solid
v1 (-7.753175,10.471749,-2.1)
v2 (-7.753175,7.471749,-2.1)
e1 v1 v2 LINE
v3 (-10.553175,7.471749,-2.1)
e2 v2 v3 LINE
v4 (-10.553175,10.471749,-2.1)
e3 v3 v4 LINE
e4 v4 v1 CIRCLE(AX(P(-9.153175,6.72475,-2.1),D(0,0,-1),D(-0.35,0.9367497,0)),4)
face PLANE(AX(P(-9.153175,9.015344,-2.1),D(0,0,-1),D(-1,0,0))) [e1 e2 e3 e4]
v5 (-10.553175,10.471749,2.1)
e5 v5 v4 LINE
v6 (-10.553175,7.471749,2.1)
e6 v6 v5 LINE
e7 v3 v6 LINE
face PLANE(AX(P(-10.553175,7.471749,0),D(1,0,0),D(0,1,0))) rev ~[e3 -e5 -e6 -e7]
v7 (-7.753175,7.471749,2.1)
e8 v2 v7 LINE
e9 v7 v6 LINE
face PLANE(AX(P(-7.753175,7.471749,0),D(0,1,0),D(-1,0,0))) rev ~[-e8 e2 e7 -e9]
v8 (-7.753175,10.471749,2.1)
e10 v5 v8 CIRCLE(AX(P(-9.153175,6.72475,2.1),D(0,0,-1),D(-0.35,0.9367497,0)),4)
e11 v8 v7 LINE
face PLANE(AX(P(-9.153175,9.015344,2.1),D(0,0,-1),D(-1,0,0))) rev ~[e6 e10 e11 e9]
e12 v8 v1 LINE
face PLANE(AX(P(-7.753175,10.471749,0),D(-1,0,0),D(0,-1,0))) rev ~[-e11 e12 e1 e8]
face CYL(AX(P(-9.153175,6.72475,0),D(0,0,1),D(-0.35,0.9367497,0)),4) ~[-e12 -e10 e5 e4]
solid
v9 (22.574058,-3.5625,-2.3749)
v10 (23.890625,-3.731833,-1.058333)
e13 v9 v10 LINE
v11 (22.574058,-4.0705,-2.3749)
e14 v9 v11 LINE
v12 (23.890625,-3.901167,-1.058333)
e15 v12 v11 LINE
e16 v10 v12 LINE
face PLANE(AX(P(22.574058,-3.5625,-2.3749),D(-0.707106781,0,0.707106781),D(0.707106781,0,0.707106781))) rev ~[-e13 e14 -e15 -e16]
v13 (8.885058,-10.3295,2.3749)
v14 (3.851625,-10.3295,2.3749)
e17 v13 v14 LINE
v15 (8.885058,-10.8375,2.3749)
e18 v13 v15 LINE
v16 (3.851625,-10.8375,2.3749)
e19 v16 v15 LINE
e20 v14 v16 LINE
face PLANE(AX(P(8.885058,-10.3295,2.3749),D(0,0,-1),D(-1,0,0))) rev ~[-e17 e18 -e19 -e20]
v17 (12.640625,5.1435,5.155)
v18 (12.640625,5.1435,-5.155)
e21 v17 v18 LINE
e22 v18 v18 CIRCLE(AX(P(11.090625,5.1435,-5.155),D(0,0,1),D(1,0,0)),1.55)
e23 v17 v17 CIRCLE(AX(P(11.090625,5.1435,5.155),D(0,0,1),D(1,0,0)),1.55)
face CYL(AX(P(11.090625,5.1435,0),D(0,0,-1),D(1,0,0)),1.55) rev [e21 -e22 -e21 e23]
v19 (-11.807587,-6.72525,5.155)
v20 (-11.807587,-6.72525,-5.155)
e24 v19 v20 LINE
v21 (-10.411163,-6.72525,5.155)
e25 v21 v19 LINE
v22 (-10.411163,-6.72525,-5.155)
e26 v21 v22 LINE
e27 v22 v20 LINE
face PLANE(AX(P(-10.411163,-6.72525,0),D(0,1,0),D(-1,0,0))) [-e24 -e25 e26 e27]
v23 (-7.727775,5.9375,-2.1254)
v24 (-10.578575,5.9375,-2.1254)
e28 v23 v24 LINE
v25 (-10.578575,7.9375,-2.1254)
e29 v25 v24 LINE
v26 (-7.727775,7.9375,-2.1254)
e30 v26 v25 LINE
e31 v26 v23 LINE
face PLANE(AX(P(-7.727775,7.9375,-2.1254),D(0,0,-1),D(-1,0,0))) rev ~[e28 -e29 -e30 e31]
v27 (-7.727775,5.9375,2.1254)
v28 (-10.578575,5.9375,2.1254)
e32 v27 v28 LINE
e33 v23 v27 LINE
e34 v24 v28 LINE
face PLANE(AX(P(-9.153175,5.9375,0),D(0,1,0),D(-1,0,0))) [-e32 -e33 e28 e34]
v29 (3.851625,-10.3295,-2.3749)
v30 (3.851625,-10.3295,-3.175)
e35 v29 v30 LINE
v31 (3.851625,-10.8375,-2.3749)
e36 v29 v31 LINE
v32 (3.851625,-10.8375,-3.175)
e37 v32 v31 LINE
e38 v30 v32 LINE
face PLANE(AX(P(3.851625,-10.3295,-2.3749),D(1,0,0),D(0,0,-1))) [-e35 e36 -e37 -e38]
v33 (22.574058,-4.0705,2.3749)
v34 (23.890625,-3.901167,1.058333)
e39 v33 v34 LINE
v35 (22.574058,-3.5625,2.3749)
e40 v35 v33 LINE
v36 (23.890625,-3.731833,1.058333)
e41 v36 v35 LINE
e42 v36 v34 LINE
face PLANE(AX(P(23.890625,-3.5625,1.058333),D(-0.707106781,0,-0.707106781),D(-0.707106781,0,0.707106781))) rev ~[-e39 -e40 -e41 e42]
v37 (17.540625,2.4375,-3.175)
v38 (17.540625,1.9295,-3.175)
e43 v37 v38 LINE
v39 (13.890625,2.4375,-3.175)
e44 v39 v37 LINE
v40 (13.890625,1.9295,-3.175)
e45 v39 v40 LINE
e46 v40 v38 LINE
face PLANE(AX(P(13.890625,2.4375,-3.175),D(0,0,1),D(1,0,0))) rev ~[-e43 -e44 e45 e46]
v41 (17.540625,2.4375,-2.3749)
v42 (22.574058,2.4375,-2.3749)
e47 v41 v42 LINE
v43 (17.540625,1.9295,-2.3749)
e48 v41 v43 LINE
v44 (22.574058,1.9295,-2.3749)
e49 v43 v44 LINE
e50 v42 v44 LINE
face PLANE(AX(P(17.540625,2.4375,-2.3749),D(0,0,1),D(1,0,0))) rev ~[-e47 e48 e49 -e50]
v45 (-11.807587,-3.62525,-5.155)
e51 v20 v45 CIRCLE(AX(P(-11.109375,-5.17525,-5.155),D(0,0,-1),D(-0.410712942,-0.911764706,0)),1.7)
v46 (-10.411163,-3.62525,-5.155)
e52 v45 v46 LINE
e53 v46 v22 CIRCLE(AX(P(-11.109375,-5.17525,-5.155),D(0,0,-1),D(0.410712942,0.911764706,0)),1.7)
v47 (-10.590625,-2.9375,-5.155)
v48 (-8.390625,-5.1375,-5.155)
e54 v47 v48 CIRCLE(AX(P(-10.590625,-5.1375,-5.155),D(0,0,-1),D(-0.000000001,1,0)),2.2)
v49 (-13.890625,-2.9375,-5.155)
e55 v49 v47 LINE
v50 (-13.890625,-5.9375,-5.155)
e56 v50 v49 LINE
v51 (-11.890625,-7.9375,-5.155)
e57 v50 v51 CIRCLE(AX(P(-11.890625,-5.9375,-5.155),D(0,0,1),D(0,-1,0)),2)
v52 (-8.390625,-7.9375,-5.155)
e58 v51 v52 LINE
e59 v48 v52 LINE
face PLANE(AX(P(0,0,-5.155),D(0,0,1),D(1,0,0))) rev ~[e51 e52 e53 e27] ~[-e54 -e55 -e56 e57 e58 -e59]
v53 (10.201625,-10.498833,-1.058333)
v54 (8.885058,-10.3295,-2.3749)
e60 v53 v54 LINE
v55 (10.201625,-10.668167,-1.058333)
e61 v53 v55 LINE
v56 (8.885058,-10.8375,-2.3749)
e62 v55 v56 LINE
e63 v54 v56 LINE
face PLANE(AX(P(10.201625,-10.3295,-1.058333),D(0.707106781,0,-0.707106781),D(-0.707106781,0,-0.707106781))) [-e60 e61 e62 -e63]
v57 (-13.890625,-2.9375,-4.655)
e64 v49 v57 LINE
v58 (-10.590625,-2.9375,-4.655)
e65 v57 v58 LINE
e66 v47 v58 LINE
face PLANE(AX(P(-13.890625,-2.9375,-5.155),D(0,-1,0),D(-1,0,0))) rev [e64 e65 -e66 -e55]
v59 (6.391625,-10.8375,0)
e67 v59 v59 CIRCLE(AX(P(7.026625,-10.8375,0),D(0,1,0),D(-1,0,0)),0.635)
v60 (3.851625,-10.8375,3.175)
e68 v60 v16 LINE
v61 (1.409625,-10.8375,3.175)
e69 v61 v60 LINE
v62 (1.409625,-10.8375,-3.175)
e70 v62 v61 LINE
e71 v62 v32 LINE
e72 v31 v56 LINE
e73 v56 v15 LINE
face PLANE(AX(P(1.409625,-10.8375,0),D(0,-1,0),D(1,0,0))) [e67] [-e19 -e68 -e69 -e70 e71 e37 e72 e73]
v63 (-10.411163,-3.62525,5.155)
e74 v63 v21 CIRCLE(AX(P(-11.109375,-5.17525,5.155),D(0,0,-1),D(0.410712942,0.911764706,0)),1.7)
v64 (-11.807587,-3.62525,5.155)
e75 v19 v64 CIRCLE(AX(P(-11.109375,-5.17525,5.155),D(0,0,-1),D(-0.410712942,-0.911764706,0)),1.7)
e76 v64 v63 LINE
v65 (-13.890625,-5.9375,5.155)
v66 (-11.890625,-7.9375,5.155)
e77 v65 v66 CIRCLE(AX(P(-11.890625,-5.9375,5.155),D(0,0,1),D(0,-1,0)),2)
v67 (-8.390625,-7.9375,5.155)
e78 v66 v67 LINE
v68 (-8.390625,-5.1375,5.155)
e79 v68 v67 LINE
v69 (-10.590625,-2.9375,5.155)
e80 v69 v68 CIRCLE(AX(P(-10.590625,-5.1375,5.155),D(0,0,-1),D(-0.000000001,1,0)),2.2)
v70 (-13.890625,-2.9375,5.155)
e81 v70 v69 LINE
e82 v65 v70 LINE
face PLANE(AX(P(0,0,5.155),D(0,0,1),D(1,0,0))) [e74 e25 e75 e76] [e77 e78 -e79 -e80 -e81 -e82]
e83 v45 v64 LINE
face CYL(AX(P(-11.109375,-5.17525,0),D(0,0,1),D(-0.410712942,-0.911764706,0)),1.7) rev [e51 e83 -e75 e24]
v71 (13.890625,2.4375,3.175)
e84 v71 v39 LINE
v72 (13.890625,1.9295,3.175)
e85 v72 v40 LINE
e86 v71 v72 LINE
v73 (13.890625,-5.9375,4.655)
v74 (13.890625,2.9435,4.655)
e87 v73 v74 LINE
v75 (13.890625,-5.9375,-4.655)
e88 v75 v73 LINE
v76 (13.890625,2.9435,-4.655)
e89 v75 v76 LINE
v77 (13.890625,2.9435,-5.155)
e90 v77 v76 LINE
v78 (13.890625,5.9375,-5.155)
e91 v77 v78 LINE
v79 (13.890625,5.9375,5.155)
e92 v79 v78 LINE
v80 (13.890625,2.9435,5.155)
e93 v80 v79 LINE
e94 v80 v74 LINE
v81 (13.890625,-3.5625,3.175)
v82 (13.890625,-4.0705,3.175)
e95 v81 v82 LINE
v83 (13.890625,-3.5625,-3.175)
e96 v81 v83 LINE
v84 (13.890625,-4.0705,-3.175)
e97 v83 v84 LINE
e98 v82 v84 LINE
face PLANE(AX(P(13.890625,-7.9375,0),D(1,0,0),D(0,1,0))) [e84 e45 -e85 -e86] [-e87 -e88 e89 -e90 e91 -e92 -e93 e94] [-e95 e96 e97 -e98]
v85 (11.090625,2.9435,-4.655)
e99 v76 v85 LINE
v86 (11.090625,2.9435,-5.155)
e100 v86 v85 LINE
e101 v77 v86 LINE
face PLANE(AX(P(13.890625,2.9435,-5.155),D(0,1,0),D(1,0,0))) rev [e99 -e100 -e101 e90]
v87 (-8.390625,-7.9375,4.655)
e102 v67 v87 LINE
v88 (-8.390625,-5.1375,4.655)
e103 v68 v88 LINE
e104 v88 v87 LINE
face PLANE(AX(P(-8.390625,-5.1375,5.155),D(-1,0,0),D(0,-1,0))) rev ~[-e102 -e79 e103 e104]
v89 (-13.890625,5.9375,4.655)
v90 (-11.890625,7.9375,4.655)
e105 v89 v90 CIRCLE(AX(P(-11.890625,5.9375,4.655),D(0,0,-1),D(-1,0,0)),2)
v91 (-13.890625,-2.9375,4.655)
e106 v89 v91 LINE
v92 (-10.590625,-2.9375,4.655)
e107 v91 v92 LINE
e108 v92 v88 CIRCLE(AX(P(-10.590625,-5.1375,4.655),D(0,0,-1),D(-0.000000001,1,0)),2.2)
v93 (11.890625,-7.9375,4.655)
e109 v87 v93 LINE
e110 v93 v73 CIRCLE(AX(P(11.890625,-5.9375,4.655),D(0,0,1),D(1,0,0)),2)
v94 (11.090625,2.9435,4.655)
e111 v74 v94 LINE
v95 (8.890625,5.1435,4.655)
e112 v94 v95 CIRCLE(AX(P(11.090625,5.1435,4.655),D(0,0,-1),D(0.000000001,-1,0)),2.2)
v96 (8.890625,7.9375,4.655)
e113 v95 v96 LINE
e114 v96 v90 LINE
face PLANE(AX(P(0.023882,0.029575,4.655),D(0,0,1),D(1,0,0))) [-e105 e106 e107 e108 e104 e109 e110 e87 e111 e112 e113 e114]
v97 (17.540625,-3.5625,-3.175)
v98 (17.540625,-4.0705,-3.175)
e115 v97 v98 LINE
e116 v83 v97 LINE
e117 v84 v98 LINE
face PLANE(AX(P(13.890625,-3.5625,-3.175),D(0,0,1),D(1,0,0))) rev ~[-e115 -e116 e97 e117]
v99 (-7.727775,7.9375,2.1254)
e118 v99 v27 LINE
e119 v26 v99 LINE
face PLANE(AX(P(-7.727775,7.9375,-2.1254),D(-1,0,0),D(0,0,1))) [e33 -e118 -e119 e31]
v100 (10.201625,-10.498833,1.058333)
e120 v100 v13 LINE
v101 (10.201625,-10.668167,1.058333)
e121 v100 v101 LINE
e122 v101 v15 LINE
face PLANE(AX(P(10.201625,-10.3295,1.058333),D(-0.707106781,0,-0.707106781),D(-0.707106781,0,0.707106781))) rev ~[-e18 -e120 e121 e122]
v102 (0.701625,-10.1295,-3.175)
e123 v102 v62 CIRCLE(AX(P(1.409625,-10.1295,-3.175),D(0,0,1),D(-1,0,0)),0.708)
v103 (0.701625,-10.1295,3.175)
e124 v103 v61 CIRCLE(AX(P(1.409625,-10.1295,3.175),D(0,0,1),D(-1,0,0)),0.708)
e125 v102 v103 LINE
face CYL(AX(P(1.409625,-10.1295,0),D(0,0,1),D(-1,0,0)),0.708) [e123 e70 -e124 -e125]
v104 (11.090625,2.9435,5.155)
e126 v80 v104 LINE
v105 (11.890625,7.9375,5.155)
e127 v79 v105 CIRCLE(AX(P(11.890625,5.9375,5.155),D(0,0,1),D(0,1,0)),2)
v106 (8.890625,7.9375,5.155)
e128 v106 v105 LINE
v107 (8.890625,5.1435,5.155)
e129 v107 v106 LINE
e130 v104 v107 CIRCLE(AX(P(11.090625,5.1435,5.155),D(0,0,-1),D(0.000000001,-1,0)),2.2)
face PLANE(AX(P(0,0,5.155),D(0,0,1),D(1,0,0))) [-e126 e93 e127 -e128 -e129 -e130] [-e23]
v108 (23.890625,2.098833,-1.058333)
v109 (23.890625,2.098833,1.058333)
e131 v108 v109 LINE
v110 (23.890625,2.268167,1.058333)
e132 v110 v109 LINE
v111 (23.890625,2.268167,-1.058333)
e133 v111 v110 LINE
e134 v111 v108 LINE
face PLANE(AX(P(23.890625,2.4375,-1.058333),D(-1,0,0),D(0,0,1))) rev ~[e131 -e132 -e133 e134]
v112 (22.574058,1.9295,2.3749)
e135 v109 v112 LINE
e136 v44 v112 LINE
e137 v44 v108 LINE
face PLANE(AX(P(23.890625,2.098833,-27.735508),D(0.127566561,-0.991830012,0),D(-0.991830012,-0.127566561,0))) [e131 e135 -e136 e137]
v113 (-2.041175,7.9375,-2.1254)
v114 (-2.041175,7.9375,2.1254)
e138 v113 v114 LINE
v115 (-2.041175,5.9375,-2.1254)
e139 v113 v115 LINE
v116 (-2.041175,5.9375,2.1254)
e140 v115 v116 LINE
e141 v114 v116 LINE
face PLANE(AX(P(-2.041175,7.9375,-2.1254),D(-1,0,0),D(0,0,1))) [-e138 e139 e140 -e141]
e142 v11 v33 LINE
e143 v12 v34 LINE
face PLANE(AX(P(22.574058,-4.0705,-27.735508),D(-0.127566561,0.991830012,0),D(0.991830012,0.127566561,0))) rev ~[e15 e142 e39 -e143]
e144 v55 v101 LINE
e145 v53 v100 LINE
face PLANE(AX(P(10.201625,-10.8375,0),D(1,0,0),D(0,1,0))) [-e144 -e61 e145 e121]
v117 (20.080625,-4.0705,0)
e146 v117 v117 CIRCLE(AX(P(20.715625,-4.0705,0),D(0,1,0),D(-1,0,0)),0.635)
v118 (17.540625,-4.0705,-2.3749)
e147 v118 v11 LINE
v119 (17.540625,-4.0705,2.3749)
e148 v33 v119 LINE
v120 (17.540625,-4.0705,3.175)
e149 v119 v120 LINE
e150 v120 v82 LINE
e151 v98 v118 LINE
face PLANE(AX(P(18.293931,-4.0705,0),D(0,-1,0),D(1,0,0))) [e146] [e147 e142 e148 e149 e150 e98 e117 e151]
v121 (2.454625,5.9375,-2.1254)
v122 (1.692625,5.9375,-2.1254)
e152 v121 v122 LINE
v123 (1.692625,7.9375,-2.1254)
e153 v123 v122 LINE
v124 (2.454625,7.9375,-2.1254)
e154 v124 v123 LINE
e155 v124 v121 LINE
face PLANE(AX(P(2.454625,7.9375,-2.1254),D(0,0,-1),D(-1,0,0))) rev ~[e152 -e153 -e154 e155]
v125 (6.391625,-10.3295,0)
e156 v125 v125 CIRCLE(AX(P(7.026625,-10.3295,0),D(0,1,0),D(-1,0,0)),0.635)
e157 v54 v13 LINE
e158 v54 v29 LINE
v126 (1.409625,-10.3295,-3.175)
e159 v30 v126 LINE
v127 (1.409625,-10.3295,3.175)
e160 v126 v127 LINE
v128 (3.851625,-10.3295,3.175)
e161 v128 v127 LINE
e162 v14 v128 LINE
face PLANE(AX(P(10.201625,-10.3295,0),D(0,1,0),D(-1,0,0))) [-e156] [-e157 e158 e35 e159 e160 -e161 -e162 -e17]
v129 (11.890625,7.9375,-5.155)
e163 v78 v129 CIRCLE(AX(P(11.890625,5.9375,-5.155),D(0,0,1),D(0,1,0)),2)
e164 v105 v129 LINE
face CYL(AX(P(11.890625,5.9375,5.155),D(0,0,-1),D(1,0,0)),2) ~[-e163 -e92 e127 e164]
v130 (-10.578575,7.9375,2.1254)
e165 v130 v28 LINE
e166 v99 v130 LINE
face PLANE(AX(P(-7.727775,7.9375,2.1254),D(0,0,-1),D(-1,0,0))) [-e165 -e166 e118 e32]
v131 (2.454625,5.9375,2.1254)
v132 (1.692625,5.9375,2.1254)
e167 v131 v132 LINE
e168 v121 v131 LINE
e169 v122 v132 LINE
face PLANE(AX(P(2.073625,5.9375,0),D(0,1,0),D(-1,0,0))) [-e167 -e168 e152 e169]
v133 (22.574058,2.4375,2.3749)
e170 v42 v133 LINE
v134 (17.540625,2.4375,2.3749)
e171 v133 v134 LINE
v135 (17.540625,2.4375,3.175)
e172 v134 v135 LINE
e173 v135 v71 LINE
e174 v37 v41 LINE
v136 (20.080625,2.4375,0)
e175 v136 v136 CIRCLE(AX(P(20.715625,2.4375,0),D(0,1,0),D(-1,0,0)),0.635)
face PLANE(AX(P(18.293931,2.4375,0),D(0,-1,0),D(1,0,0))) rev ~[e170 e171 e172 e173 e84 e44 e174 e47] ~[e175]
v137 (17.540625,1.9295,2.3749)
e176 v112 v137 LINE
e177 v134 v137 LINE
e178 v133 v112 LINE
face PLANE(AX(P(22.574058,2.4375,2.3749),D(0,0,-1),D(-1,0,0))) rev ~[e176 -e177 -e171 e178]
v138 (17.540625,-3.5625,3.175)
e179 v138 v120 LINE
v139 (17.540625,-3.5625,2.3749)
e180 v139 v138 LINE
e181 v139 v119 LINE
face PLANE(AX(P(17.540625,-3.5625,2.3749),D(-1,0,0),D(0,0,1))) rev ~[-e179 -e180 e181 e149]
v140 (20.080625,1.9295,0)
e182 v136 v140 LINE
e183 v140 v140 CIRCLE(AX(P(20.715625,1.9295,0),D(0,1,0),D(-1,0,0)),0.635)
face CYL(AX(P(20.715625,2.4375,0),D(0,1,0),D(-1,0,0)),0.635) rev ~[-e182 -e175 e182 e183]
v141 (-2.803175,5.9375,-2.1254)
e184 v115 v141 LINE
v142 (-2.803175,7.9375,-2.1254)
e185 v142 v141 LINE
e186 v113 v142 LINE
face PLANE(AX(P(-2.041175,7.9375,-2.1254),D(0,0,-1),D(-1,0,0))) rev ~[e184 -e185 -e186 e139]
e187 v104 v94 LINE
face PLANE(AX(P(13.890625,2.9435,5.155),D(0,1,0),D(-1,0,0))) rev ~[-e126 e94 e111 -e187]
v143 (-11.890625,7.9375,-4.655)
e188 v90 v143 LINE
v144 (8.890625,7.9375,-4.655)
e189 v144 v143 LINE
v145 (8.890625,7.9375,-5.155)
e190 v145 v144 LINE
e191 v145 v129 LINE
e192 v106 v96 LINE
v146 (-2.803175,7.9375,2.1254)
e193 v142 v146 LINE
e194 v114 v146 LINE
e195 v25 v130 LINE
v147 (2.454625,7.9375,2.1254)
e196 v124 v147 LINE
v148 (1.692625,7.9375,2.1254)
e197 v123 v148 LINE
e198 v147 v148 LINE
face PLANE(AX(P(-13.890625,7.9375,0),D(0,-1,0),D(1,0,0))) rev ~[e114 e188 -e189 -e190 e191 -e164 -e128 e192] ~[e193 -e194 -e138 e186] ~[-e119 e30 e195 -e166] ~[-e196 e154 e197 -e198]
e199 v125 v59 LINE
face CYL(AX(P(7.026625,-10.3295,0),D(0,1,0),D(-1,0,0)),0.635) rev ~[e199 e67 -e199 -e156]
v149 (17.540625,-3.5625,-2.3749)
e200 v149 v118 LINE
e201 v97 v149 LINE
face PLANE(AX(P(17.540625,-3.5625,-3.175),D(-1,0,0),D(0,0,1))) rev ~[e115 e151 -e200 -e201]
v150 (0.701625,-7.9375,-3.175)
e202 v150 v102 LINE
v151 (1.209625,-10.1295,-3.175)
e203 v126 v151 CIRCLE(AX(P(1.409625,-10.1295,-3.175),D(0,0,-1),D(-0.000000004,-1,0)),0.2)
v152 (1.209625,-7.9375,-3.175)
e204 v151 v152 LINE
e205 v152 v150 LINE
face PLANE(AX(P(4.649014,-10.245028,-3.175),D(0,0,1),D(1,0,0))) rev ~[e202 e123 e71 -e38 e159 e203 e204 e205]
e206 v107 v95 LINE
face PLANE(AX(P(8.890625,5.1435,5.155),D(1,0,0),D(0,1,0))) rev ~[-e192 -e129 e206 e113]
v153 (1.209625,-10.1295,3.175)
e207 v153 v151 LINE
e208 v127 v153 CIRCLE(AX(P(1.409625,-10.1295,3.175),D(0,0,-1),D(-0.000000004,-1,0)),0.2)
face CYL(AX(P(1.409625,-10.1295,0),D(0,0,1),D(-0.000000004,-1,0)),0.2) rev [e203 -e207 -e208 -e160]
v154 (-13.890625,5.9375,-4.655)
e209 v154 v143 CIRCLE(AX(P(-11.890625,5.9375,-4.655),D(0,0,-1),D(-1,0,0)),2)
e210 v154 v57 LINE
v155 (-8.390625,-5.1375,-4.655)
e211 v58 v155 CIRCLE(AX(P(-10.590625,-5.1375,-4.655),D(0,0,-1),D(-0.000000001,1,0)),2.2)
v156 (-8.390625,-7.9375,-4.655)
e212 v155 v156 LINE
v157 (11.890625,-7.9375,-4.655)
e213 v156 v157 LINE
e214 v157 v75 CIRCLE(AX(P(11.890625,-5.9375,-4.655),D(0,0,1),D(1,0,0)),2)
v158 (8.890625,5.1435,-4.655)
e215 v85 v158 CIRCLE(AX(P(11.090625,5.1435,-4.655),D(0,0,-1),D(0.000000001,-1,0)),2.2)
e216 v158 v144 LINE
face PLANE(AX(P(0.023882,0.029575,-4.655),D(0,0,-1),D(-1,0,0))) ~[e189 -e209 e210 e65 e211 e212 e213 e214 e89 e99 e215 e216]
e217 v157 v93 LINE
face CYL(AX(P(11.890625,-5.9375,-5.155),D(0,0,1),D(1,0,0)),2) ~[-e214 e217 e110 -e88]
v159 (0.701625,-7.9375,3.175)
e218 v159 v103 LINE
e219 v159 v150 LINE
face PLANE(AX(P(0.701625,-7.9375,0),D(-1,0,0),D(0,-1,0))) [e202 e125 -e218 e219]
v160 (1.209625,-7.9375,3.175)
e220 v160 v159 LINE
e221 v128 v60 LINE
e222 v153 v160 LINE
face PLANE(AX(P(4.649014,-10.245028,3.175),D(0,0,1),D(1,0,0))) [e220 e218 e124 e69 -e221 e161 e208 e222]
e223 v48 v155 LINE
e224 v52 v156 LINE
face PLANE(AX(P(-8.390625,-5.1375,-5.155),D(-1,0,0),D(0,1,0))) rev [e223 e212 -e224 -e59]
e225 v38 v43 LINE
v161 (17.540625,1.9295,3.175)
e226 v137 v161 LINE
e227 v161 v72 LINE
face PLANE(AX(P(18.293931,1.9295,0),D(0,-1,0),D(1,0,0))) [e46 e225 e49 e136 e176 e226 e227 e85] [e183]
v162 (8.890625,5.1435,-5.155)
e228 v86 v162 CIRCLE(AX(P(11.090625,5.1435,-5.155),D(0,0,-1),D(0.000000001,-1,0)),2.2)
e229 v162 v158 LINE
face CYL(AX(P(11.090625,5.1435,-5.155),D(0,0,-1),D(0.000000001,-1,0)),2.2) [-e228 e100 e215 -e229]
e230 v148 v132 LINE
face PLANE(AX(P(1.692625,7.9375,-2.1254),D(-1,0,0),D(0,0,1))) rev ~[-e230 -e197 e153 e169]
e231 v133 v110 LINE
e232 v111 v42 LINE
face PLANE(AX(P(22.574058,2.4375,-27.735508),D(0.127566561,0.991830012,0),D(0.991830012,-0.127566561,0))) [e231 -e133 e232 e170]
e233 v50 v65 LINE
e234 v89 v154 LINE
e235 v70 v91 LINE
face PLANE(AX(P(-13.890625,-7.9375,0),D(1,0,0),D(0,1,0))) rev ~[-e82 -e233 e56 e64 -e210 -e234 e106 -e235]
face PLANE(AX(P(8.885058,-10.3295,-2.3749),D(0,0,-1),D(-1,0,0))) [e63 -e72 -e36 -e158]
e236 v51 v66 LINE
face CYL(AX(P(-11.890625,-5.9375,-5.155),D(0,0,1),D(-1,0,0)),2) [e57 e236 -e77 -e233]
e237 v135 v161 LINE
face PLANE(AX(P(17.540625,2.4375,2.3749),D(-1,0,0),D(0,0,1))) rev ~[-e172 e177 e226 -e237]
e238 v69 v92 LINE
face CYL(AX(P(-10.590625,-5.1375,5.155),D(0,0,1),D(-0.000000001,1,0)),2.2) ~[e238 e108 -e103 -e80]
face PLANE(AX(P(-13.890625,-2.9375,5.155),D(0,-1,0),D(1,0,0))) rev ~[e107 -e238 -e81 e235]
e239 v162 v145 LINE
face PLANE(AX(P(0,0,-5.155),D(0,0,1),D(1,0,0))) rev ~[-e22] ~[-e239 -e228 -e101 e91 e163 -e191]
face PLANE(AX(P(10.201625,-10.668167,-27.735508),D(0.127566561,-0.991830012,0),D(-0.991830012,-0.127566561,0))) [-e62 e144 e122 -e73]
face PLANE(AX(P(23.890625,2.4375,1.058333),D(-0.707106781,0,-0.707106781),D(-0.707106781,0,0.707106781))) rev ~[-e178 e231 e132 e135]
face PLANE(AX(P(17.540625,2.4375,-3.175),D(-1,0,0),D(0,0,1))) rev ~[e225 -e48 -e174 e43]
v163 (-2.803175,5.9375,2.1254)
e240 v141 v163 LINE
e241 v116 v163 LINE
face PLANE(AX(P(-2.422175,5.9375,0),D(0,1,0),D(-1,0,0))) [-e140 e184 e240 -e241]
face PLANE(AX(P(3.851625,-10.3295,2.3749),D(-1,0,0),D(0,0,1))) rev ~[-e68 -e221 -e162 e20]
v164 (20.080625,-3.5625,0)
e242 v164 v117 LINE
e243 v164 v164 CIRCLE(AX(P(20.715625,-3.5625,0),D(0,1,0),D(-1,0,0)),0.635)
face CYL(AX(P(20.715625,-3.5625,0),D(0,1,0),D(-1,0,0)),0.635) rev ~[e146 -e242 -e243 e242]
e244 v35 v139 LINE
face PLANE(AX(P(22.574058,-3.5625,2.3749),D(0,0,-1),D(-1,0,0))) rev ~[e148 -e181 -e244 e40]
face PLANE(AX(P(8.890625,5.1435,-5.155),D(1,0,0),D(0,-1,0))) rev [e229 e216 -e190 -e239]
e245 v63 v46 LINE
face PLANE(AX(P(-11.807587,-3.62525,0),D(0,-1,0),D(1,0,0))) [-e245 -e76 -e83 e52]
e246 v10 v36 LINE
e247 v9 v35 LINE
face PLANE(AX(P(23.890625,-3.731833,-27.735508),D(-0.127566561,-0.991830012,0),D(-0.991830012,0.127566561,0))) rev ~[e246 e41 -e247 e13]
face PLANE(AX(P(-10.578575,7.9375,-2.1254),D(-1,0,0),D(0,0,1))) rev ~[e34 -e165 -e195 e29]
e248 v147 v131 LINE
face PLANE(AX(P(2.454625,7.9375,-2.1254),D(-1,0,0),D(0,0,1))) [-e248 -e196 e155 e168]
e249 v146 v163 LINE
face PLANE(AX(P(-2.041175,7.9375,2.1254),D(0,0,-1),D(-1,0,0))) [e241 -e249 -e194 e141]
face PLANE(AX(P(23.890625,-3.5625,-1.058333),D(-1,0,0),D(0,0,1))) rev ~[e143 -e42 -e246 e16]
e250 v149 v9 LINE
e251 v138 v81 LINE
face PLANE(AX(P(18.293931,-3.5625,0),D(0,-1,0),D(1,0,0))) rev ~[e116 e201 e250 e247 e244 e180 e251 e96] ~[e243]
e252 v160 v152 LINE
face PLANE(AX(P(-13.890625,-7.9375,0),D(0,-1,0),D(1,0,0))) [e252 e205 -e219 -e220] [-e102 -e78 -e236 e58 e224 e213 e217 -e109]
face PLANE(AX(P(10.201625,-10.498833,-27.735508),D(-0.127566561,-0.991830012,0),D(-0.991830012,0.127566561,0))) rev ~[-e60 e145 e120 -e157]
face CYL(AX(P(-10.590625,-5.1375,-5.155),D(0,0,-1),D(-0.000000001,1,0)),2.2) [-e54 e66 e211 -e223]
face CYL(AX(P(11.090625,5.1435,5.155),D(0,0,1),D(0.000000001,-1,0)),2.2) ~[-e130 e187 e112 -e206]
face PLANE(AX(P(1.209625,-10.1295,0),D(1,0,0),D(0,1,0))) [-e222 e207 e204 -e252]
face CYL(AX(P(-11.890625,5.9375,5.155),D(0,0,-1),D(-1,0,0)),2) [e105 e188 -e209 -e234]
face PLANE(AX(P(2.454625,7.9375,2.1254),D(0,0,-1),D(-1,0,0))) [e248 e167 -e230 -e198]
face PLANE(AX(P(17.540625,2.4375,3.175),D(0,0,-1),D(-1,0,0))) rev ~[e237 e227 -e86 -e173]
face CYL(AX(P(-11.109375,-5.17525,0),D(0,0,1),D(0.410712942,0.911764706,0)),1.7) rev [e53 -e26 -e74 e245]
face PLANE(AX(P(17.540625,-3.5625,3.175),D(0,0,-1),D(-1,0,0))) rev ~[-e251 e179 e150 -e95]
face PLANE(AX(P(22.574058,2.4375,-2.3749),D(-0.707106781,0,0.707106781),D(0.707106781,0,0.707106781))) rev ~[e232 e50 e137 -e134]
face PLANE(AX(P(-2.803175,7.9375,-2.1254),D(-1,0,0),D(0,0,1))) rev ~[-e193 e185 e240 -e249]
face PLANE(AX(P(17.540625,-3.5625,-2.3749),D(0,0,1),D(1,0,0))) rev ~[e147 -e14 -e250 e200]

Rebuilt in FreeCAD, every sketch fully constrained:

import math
import FreeCAD as App
import Part
import Sketcher
from FreeCAD import Vector


def edges_at(feature, points):
    """Names of the edges that pass closest to the given points."""
    edges = feature.Shape.Edges
    near = lambda p: min(range(len(edges)), key=lambda i: edges[i].distToShape(Part.Vertex(*p))[0])
    return sorted({f"Edge{near(p) + 1}" for p in points})


def add_polygon(sketch, points):
    """Adds a closed chain of lines whose ends are joined by coincident constraints."""
    first, n = sketch.GeometryCount, len(points)
    for a, b in zip(points, points[1:] + points[:1]):
        sketch.addGeometry(Part.LineSegment(App.Vector(*a, 0), App.Vector(*b, 0)), False)
    for i in range(n):
        sketch.addConstraint(Sketcher.Constraint("Coincident", first + i, 2, first + (i + 1) % n, 1))

doc = App.newDocument("Part")
body = doc.addObject("PartDesign::Body", "Body")

# Sketch on XY plane
sketch1 = doc.addObject("Sketcher::SketchObject", "Sketch")
body.addObject(sketch1)
sketch1.AttachmentSupport = (doc.XY_Plane, [""])
sketch1.MapMode = "FlatFace"
add_polygon(sketch1, [(-13.9, 7.9), (-13.9, -7.9), (13.9, -7.9), (13.9, 7.9)])  # lines 0-3
sketch1.addGeometry(Part.ArcOfCircle(Part.Circle(Vector(-11.1, -5.2, 0), Vector(0, 0, 1), 1.7), math.radians(114), math.radians(246)), False)  # 4
sketch1.addGeometry(Part.LineSegment(Vector(-11.8, -3.6, 0), Vector(-10.4, -3.6, 0)), False)  # 5
sketch1.addGeometry(Part.ArcOfCircle(Part.Circle(Vector(-11.1, -5.2, 0), Vector(0, 0, 1), 1.7), math.radians(-66), math.radians(66)), False)  # 6
sketch1.addGeometry(Part.LineSegment(Vector(-10.4, -6.7, 0), Vector(-11.8, -6.7, 0)), False)  # 7
sketch1.addGeometry(Part.Circle(Vector(11.1, 5.1, 0), Vector(0, 0, 1), 1.6), False)  # 8
sketch1.addConstraint(Sketcher.Constraint("Coincident", 4, 1, 5, 1))
sketch1.addConstraint(Sketcher.Constraint("Coincident", 5, 2, 6, 2))
sketch1.addConstraint(Sketcher.Constraint("Coincident", 6, 1, 7, 1))
sketch1.addConstraint(Sketcher.Constraint("Coincident", 7, 2, 4, 2))
sketch1.addConstraint(Sketcher.Constraint("Vertical", 0))
sketch1.addConstraint(Sketcher.Constraint("Horizontal", 1))
sketch1.addConstraint(Sketcher.Constraint("Vertical", 2))
sketch1.addConstraint(Sketcher.Constraint("Horizontal", 3))
sketch1.addConstraint(Sketcher.Constraint("Horizontal", 5))
sketch1.addConstraint(Sketcher.Constraint("Horizontal", 7))
sketch1.addConstraint(Sketcher.Constraint("Coincident", 6, 3, 4, 3))
sketch1.addConstraint(Sketcher.Constraint("Equal", 4, 6))
sketch1.addConstraint(Sketcher.Constraint("Symmetric", 0, 2, 2, 2, -1, 1))
sketch1.addConstraint(Sketcher.Constraint("Vertical", 5, 2, 6, 1))
sketch1.addConstraint(Sketcher.Constraint("Diameter", 8, 3.1))
sketch1.addConstraint(Sketcher.Constraint("Radius", 4, 1.7))
sketch1.addConstraint(Sketcher.Constraint("DistanceX", 4, 3, 1, 2, 25.0))
sketch1.addConstraint(Sketcher.Constraint("DistanceX", 4, 3, 8, 3, 22.2))
sketch1.addConstraint(Sketcher.Constraint("DistanceY", 6, 1, 5, 2, 3.1))
sketch1.addConstraint(Sketcher.Constraint("DistanceY", 0, 2, 0, 1, 15.875))
sketch1.addConstraint(Sketcher.Constraint("DistanceY", 0, 2, 8, 3, 13.081))
sketch1.addConstraint(Sketcher.Constraint("DistanceX", 1, 1, 1, 2, 27.78125))
sketch1.addConstraint(Sketcher.Constraint("DistanceY", 4, 3, -1, 1, 5.17525))
pad1 = doc.addObject("PartDesign::Pad", "Pad")
body.addObject(pad1)
pad1.Profile = sketch1
pad1.Length = 10.31
pad1.Midplane = True
doc.recompute()

fillet = doc.addObject("PartDesign::Fillet", "Fillet")
body.addObject(fillet)
fillet.Base = (pad1, edges_at(pad1, [
    (-13.891, 7.938, 0),
    (13.891, 7.938, 0),
    (13.891, -7.938, 0),
    (-13.891, -7.938, 0),
]))
fillet.Radius = 2

# Sketch on XZ plane
sketch2 = doc.addObject("Sketcher::SketchObject", "Sketch001")
body.addObject(sketch2)
sketch2.AttachmentSupport = (doc.XZ_Plane, [""])
sketch2.MapMode = "FlatFace"
sketch2.AttachmentOffset = App.Placement(Vector(0, 0, -7.9375), App.Rotation())
add_polygon(sketch2, [(-7.7, 2.1), (-7.7, -2.1), (-10.6, -2.1), (-10.6, 2.1)])  # lines 0-3
add_polygon(sketch2, [(-2, 2.1), (-2, -2.1), (-2.8, -2.1), (-2.8, 2.1)])  # lines 4-7
add_polygon(sketch2, [(2.5, 2.1), (2.5, -2.1), (1.7, -2.1), (1.7, 2.1)])  # lines 8-11
sketch2.addConstraint(Sketcher.Constraint("Vertical", 0))
sketch2.addConstraint(Sketcher.Constraint("Horizontal", 1))
sketch2.addConstraint(Sketcher.Constraint("Vertical", 2))
sketch2.addConstraint(Sketcher.Constraint("Horizontal", 3))
sketch2.addConstraint(Sketcher.Constraint("Vertical", 4))
sketch2.addConstraint(Sketcher.Constraint("Horizontal", 5))
sketch2.addConstraint(Sketcher.Constraint("Vertical", 6))
sketch2.addConstraint(Sketcher.Constraint("Horizontal", 7))
sketch2.addConstraint(Sketcher.Constraint("Vertical", 8))
sketch2.addConstraint(Sketcher.Constraint("Horizontal", 9))
sketch2.addConstraint(Sketcher.Constraint("Vertical", 10))
sketch2.addConstraint(Sketcher.Constraint("Horizontal", 11))
sketch2.addConstraint(Sketcher.Constraint("Horizontal", 1, 2, 4, 2))
sketch2.addConstraint(Sketcher.Constraint("Horizontal", 3, 2, 6, 2))
sketch2.addConstraint(Sketcher.Constraint("Horizontal", 5, 2, 8, 2))
sketch2.addConstraint(Sketcher.Constraint("Horizontal", 7, 2, 10, 2))
sketch2.addConstraint(Sketcher.Constraint("Equal", 7, 9))
sketch2.addConstraint(Sketcher.Constraint("DistanceX", 5, 2, 5, 1, 0.762))
sketch2.addConstraint(Sketcher.Constraint("DistanceX", 1, 2, 1, 1, 2.8508))
sketch2.addConstraint(Sketcher.Constraint("DistanceY", 0, 2, 0, 1, 4.2508))
sketch2.addConstraint(Sketcher.Constraint("DistanceY", 0, 2, -1, 1, 2.1254))
sketch2.addConstraint(Sketcher.Constraint("DistanceX", 0, 2, 4, 2, 5.6866))
sketch2.addConstraint(Sketcher.Constraint("DistanceX", 4, 2, 8, 2, 4.4958))
sketch2.addConstraint(Sketcher.Constraint("DistanceX", 0, 2, -1, 1, 7.727775))
pocket1 = doc.addObject("PartDesign::Pocket", "Pocket")
body.addObject(pocket1)
pocket1.Profile = sketch2
pocket1.Length = 2
pocket1.Reversed = True

# Sketch on XY plane
sketch3 = doc.addObject("Sketcher::SketchObject", "Sketch002")
body.addObject(sketch3)
sketch3.AttachmentSupport = (doc.XY_Plane, [""])
sketch3.MapMode = "FlatFace"
sketch3.AttachmentOffset = App.Placement(Vector(0, 0, 5.155), App.Rotation())
sketch3.addGeometry(Part.LineSegment(Vector(-8.4, -7.9, 0), Vector(13.9, -7.9, 0)), False)
sketch3.addGeometry(Part.LineSegment(Vector(13.9, -7.9, 0), Vector(13.9, 2.9, 0)), False)
sketch3.addGeometry(Part.LineSegment(Vector(13.9, 2.9, 0), Vector(11.1, 2.9, 0)), False)
sketch3.addGeometry(Part.ArcOfCircle(Part.Circle(Vector(11.1, 5.1, 0), Vector(0, 0, 1), 2.2), math.radians(180), math.radians(270)), False)
sketch3.addGeometry(Part.LineSegment(Vector(8.9, 5.1, 0), Vector(8.9, 7.9, 0)), False)
sketch3.addGeometry(Part.LineSegment(Vector(8.9, 7.9, 0), Vector(-13.9, 7.9, 0)), False)
sketch3.addGeometry(Part.LineSegment(Vector(-13.9, 7.9, 0), Vector(-13.9, -2.9, 0)), False)
sketch3.addGeometry(Part.LineSegment(Vector(-13.9, -2.9, 0), Vector(-10.6, -2.9, 0)), False)
sketch3.addGeometry(Part.ArcOfCircle(Part.Circle(Vector(-10.6, -5.1, 0), Vector(0, 0, 1), 2.2), math.radians(0), math.radians(90)), False)
sketch3.addGeometry(Part.LineSegment(Vector(-8.4, -5.1, 0), Vector(-8.4, -7.9, 0)), False)
sketch3.addConstraint(Sketcher.Constraint("Coincident", 0, 2, 1, 1))
sketch3.addConstraint(Sketcher.Constraint("Coincident", 1, 2, 2, 1))
sketch3.addConstraint(Sketcher.Constraint("Tangent", 2, 2, 3, 2))
sketch3.addConstraint(Sketcher.Constraint("Tangent", 3, 1, 4, 1))
sketch3.addConstraint(Sketcher.Constraint("Coincident", 4, 2, 5, 1))
sketch3.addConstraint(Sketcher.Constraint("Coincident", 5, 2, 6, 1))
sketch3.addConstraint(Sketcher.Constraint("Coincident", 6, 2, 7, 1))
sketch3.addConstraint(Sketcher.Constraint("Tangent", 7, 2, 8, 2))
sketch3.addConstraint(Sketcher.Constraint("Tangent", 8, 1, 9, 1))
sketch3.addConstraint(Sketcher.Constraint("Coincident", 9, 2, 0, 1))
sketch3.addConstraint(Sketcher.Constraint("Horizontal", 0))
sketch3.addConstraint(Sketcher.Constraint("Vertical", 1))
sketch3.addConstraint(Sketcher.Constraint("Horizontal", 2))
sketch3.addConstraint(Sketcher.Constraint("Vertical", 4))
sketch3.addConstraint(Sketcher.Constraint("Horizontal", 5))
sketch3.addConstraint(Sketcher.Constraint("Vertical", 6))
sketch3.addConstraint(Sketcher.Constraint("Horizontal", 7))
sketch3.addConstraint(Sketcher.Constraint("Vertical", 9))
sketch3.addConstraint(Sketcher.Constraint("Equal", 3, 8))
sketch3.addConstraint(Sketcher.Constraint("Symmetric", 0, 2, 5, 2, -1, 1))
sketch3.addConstraint(Sketcher.Constraint("Equal", 2, 9))
sketch3.addConstraint(Sketcher.Constraint("Radius", 3, 2.2))
sketch3.addConstraint(Sketcher.Constraint("DistanceX", 2, 2, 2, 1, 2.8))
sketch3.addConstraint(Sketcher.Constraint("DistanceX", 7, 1, 7, 2, 3.3))
sketch3.addConstraint(Sketcher.Constraint("DistanceY", 1, 1, 1, 2, 10.881))
sketch3.addConstraint(Sketcher.Constraint("DistanceY", 4, 1, 4, 2, 2.794))
sketch3.addConstraint(Sketcher.Constraint("DistanceX", 0, 1, 0, 2, 22.28125))
pocket2 = doc.addObject("PartDesign::Pocket", "Pocket001")
body.addObject(pocket2)
pocket2.Profile = sketch3
pocket2.Length = 0.5
doc.recompute()

mirrored = doc.addObject("PartDesign::Mirrored", "Mirrored")
body.addObject(mirrored)
mirrored.Originals = [pocket2]
mirrored.MirrorPlane = (doc.XY_Plane, [""])
body.Tip = mirrored

# Sketch on XY plane
sketch4 = doc.addObject("Sketcher::SketchObject", "Sketch003")
body.addObject(sketch4)
sketch4.AttachmentSupport = (doc.XY_Plane, [""])
sketch4.MapMode = "FlatFace"
sketch4.addGeometry(Part.LineSegment(Vector(0.7, -7.94, 0), Vector(0.7, -10.13, 0)), False)
sketch4.addGeometry(Part.ArcOfCircle(Part.Circle(Vector(1.41, -10.13, 0), Vector(0, 0, 1), 0.71), math.radians(180), math.radians(270)), False)
sketch4.addGeometry(Part.LineSegment(Vector(1.41, -10.84, 0), Vector(10.2, -10.84, 0)), False)
sketch4.addGeometry(Part.LineSegment(Vector(10.2, -10.84, 0), Vector(10.2, -10.33, 0)), False)
sketch4.addGeometry(Part.LineSegment(Vector(10.2, -10.33, 0), Vector(1.41, -10.33, 0)), False)
sketch4.addGeometry(Part.ArcOfCircle(Part.Circle(Vector(1.41, -10.13, 0), Vector(0, 0, 1), 0.2), math.radians(-180), math.radians(-90)), False)
sketch4.addGeometry(Part.LineSegment(Vector(1.21, -10.13, 0), Vector(1.21, -7.94, 0)), False)
sketch4.addGeometry(Part.LineSegment(Vector(1.21, -7.94, 0), Vector(0.7, -7.94, 0)), False)
sketch4.addConstraint(Sketcher.Constraint("Tangent", 0, 2, 1, 1))
sketch4.addConstraint(Sketcher.Constraint("Tangent", 1, 2, 2, 1))
sketch4.addConstraint(Sketcher.Constraint("Coincident", 2, 2, 3, 1))
sketch4.addConstraint(Sketcher.Constraint("Coincident", 3, 2, 4, 1))
sketch4.addConstraint(Sketcher.Constraint("Tangent", 4, 2, 5, 2))
sketch4.addConstraint(Sketcher.Constraint("Tangent", 5, 1, 6, 1))
sketch4.addConstraint(Sketcher.Constraint("Coincident", 6, 2, 7, 1))
sketch4.addConstraint(Sketcher.Constraint("Coincident", 7, 2, 0, 1))
sketch4.addConstraint(Sketcher.Constraint("Vertical", 0))
sketch4.addConstraint(Sketcher.Constraint("Horizontal", 2))
sketch4.addConstraint(Sketcher.Constraint("Vertical", 3))
sketch4.addConstraint(Sketcher.Constraint("Horizontal", 4))
sketch4.addConstraint(Sketcher.Constraint("Vertical", 6))
sketch4.addConstraint(Sketcher.Constraint("Horizontal", 7))
sketch4.addConstraint(Sketcher.Constraint("Coincident", 5, 3, 1, 3))
sketch4.addConstraint(Sketcher.Constraint("Radius", 5, 0.2))
sketch4.addConstraint(Sketcher.Constraint("Radius", 1, 0.708))
sketch4.addConstraint(Sketcher.Constraint("DistanceX", 0, 2, 2, 2, 9.5))
sketch4.addConstraint(Sketcher.Constraint("DistanceY", 0, 2, 0, 1, 2.192))
sketch4.addConstraint(Sketcher.Constraint("DistanceY", 1, 3, -1, 1, 10.1295))
sketch4.addConstraint(Sketcher.Constraint("DistanceX", -1, 1, 1, 3, 1.409625))
pad2 = doc.addObject("PartDesign::Pad", "Pad001")
body.addObject(pad2)
pad2.Profile = sketch4
pad2.Length = 6.35
pad2.Midplane = True

# Sketch on XZ plane
sketch5 = doc.addObject("Sketcher::SketchObject", "Sketch004")
body.addObject(sketch5)
sketch5.AttachmentSupport = (doc.XZ_Plane, [""])
sketch5.MapMode = "FlatFace"
sketch5.AttachmentOffset = App.Placement(Vector(0, 0, 10.3295), App.Rotation())
sketch5.addGeometry(Part.Circle(Vector(7, 0, 0), Vector(0, 0, 1), 0.6), False)  # 0
add_polygon(sketch5, [(10.2, 1.1), (8.9, 2.4), (3.9, 2.4), (3.9, 3.2), (10.2, 3.2)])  # lines 1-5
add_polygon(sketch5, [(10.2, -1.1), (10.2, -3.2), (3.9, -3.2), (3.9, -2.4), (8.9, -2.4)])  # lines 6-10
sketch5.addConstraint(Sketcher.Constraint("Horizontal", 2))
sketch5.addConstraint(Sketcher.Constraint("Vertical", 3))
sketch5.addConstraint(Sketcher.Constraint("Horizontal", 4))
sketch5.addConstraint(Sketcher.Constraint("Vertical", 5))
sketch5.addConstraint(Sketcher.Constraint("Vertical", 6))
sketch5.addConstraint(Sketcher.Constraint("Horizontal", 7))
sketch5.addConstraint(Sketcher.Constraint("Vertical", 8))
sketch5.addConstraint(Sketcher.Constraint("Horizontal", 9))
sketch5.addConstraint(Sketcher.Constraint("Symmetric", 4, 2, 6, 2, -1))
sketch5.addConstraint(Sketcher.Constraint("Symmetric", 2, 2, 8, 2, -1))
sketch5.addConstraint(Sketcher.Constraint("PointOnObject", 0, 3, -1))
sketch5.addConstraint(Sketcher.Constraint("Perpendicular", 1, 10))
sketch5.addConstraint(Sketcher.Constraint("Vertical", 1, 2, 9, 2))
sketch5.addConstraint(Sketcher.Constraint("Equal", 5, 6))
sketch5.addConstraint(Sketcher.Constraint("Diameter", 0, 1.27))
sketch5.addConstraint(Sketcher.Constraint("DistanceX", 4, 1, 4, 2, 6.35))
sketch5.addConstraint(Sketcher.Constraint("DistanceY", 6, 2, 4, 2, 6.35))
sketch5.addConstraint(Sketcher.Constraint("DistanceY", 3, 1, 3, 2, 0.8001))
sketch5.addConstraint(Sketcher.Constraint("DistanceX", 2, 2, 0, 3, 3.175))
sketch5.addConstraint(Sketcher.Constraint("DistanceX", 2, 2, 2, 1, 5.033433))
sketch5.addConstraint(Sketcher.Constraint("DistanceX", -1, 1, 1, 2, 8.885058))
pocket3 = doc.addObject("PartDesign::Pocket", "Pocket002")
body.addObject(pocket3)
pocket3.Profile = sketch5
pocket3.Type = "ThroughAll"
pocket3.Reversed = True

# Sketch on XZ plane
sketch6 = doc.addObject("Sketcher::SketchObject", "Sketch005")
body.addObject(sketch6)
sketch6.AttachmentSupport = (doc.XZ_Plane, [""])
sketch6.MapMode = "FlatFace"
sketch6.AttachmentOffset = App.Placement(Vector(0, 0, -2.4375), App.Rotation())
add_polygon(sketch6, [(17.5, -3.2), (13.9, -3.2), (13.9, 3.2), (17.5, 3.2), (17.5, 2.4), (22.6, 2.4), (23.9, 1.1), (23.9, -1.1), (22.6, -2.4), (17.5, -2.4)])  # lines 0-9
sketch6.addGeometry(Part.Circle(Vector(20.7, 0, 0), Vector(0, 0, 1), 0.6), False)  # 10
sketch6.addConstraint(Sketcher.Constraint("Horizontal", 0))
sketch6.addConstraint(Sketcher.Constraint("Vertical", 1))
sketch6.addConstraint(Sketcher.Constraint("Horizontal", 2))
sketch6.addConstraint(Sketcher.Constraint("Vertical", 3))
sketch6.addConstraint(Sketcher.Constraint("Horizontal", 4))
sketch6.addConstraint(Sketcher.Constraint("Vertical", 6))
sketch6.addConstraint(Sketcher.Constraint("Horizontal", 8))
sketch6.addConstraint(Sketcher.Constraint("Vertical", 9))
sketch6.addConstraint(Sketcher.Constraint("Symmetric", 4, 2, 7, 2, -1))
sketch6.addConstraint(Sketcher.Constraint("Symmetric", 2, 2, 9, 2, -1))
sketch6.addConstraint(Sketcher.Constraint("PointOnObject", 10, 3, -1))
sketch6.addConstraint(Sketcher.Constraint("Perpendicular", 5, 7))
sketch6.addConstraint(Sketcher.Constraint("Equal", 5, 7))
sketch6.addConstraint(Sketcher.Constraint("Diameter", 10, 1.27))
sketch6.addConstraint(Sketcher.Constraint("DistanceX", 1, 2, 5, 2, 10.0))
sketch6.addConstraint(Sketcher.Constraint("DistanceX", 0, 2, 0, 1, 3.65))
sketch6.addConstraint(Sketcher.Constraint("DistanceY", 1, 1, 1, 2, 6.35))
sketch6.addConstraint(Sketcher.Constraint("DistanceY", 3, 2, 3, 1, 0.8001))
sketch6.addConstraint(Sketcher.Constraint("DistanceX", 0, 2, 10, 3, 6.825))
sketch6.addConstraint(Sketcher.Constraint("DistanceX", 4, 1, 4, 2, 5.033433))
sketch6.addConstraint(Sketcher.Constraint("DistanceX", -1, 1, 4, 2, 22.574058))
pad3 = doc.addObject("PartDesign::Pad", "Pad002")
body.addObject(pad3)
pad3.Profile = sketch6
pad3.Length = 0.508
doc.recompute()

linearpattern = doc.addObject("PartDesign::LinearPattern", "LinearPattern")
body.addObject(linearpattern)
linearpattern.Originals = [pad3]
linearpattern.Direction = (doc.Y_Axis, [""])
linearpattern.Mode = "offset"
linearpattern.Offset = 6
linearpattern.Occurrences = 2
linearpattern.Reversed = True
body.Tip = linearpattern

# Sketch on XY plane
sketch7 = doc.addObject("Sketcher::SketchObject", "Sketch006")
body.addObject(sketch7)
sketch7.AttachmentSupport = (doc.XY_Plane, [""])
sketch7.MapMode = "FlatFace"
add_polygon(sketch7, [(10.2, -10.33), (8.89, -10.33), (10.2, -10.5)])  # lines 0-2
add_polygon(sketch7, [(8.89, -10.84), (10.2, -10.84), (10.2, -10.67)])  # lines 3-5
add_polygon(sketch7, [(22.57, 2.44), (23.89, 2.27), (23.89, 2.44)])  # lines 6-8
add_polygon(sketch7, [(22.57, 1.93), (23.89, 1.93), (23.89, 2.1)])  # lines 9-11
add_polygon(sketch7, [(23.89, -3.73), (23.89, -3.56), (22.57, -3.56)])  # lines 12-14
add_polygon(sketch7, [(23.89, -4.07), (23.89, -3.9), (22.57, -4.07)])  # lines 15-17
sketch7.addConstraint(Sketcher.Constraint("Horizontal", 0))
sketch7.addConstraint(Sketcher.Constraint("Vertical", 2))
sketch7.addConstraint(Sketcher.Constraint("Horizontal", 3))
sketch7.addConstraint(Sketcher.Constraint("Vertical", 4))
sketch7.addConstraint(Sketcher.Constraint("Vertical", 7))
sketch7.addConstraint(Sketcher.Constraint("Horizontal", 8))
sketch7.addConstraint(Sketcher.Constraint("Horizontal", 9))
sketch7.addConstraint(Sketcher.Constraint("Vertical", 10))
sketch7.addConstraint(Sketcher.Constraint("Vertical", 12))
sketch7.addConstraint(Sketcher.Constraint("Horizontal", 13))
sketch7.addConstraint(Sketcher.Constraint("Vertical", 15))
sketch7.addConstraint(Sketcher.Constraint("Horizontal", 17))
sketch7.addConstraint(Sketcher.Constraint("Parallel", 1, 6))
sketch7.addConstraint(Sketcher.Constraint("Parallel", 5, 11))
sketch7.addConstraint(Sketcher.Constraint("Parallel", 6, 14))
sketch7.addConstraint(Sketcher.Constraint("Parallel", 11, 16))
sketch7.addConstraint(Sketcher.Constraint("Vertical", 2, 2, 3, 2))
sketch7.addConstraint(Sketcher.Constraint("Vertical", 0, 2, 5, 2))
sketch7.addConstraint(Sketcher.Constraint("Vertical", 7, 2, 9, 2))
sketch7.addConstraint(Sketcher.Constraint("Vertical", 8, 2, 11, 2))
sketch7.addConstraint(Sketcher.Constraint("Vertical", 10, 2, 12, 2))
sketch7.addConstraint(Sketcher.Constraint("Vertical", 11, 2, 13, 2))
sketch7.addConstraint(Sketcher.Constraint("Vertical", 14, 2, 15, 2))
sketch7.addConstraint(Sketcher.Constraint("Vertical", 13, 2, 16, 2))
sketch7.addConstraint(Sketcher.Constraint("Equal", 3, 8))
sketch7.addConstraint(Sketcher.Constraint("Equal", 2, 4))
sketch7.addConstraint(Sketcher.Constraint("DistanceY", 12, 2, 7, 2, 6.0))
sketch7.addConstraint(Sketcher.Constraint("DistanceY", 16, 2, 11, 2, 6.0))
sketch7.addConstraint(Sketcher.Constraint("DistanceY", 3, 2, 2, 2, 0.508))
sketch7.addConstraint(Sketcher.Constraint("DistanceX", 2, 2, 6, 2, 13.689))
sketch7.addConstraint(Sketcher.Constraint("DistanceY", 1, 2, 6, 2, 12.767))
sketch7.addConstraint(Sketcher.Constraint("DistanceY", 9, 2, 7, 2, 0.508))
sketch7.addConstraint(Sketcher.Constraint("DistanceY", 0, 2, -1, 1, 10.3295))
sketch7.addConstraint(Sketcher.Constraint("Distance", 1, 1.327412))
sketch7.addConstraint(Sketcher.Constraint("DistanceX", 0, 2, 0, 1, 1.316567))
sketch7.addConstraint(Sketcher.Constraint("DistanceX", -1, 1, 0, 2, 8.885058))
pocket4 = doc.addObject("PartDesign::Pocket", "Pocket003")
body.addObject(pocket4)
pocket4.Profile = sketch7
pocket4.Type = "ThroughAll"
pocket4.Midplane = True
body2 = doc.addObject("PartDesign::Body", "Body001")

# Sketch on XY plane
sketch8 = doc.addObject("Sketcher::SketchObject", "Sketch007")
body2.addObject(sketch8)
sketch8.AttachmentSupport = (doc.getObject("XY_Plane001"), [""])
sketch8.MapMode = "FlatFace"
sketch8.addGeometry(Part.LineSegment(Vector(-10.6, 10.5, 0), Vector(-10.6, 7.5, 0)), False)
sketch8.addGeometry(Part.LineSegment(Vector(-10.6, 7.5, 0), Vector(-7.8, 7.5, 0)), False)
sketch8.addGeometry(Part.LineSegment(Vector(-7.8, 7.5, 0), Vector(-7.8, 10.5, 0)), False)
sketch8.addGeometry(Part.ArcOfCircle(Part.Circle(Vector(-9.2, 6.7, 0), Vector(0, 0, 1), 4), math.radians(70), math.radians(110)), False)
sketch8.addConstraint(Sketcher.Constraint("Coincident", 0, 2, 1, 1))
sketch8.addConstraint(Sketcher.Constraint("Coincident", 1, 2, 2, 1))
sketch8.addConstraint(Sketcher.Constraint("Coincident", 2, 2, 3, 1))
sketch8.addConstraint(Sketcher.Constraint("Coincident", 3, 2, 0, 1))
sketch8.addConstraint(Sketcher.Constraint("Vertical", 0))
sketch8.addConstraint(Sketcher.Constraint("Horizontal", 1))
sketch8.addConstraint(Sketcher.Constraint("Vertical", 2))
sketch8.addConstraint(Sketcher.Constraint("Horizontal", 2, 2, 3, 2))
sketch8.addConstraint(Sketcher.Constraint("Radius", 3, 4.0))
sketch8.addConstraint(Sketcher.Constraint("DistanceY", 0, 2, 0, 1, 3.0))
sketch8.addConstraint(Sketcher.Constraint("DistanceX", 1, 1, 1, 2, 2.8))
sketch8.addConstraint(Sketcher.Constraint("DistanceY", -1, 1, 3, 3, 6.72475))
sketch8.addConstraint(Sketcher.Constraint("DistanceX", 3, 3, -1, 1, 9.153175))
pad4 = doc.addObject("PartDesign::Pad", "Pad003")
body2.addObject(pad4)
pad4.Profile = sketch8
pad4.Length = 4.2
pad4.Midplane = True

doc.recompute()
